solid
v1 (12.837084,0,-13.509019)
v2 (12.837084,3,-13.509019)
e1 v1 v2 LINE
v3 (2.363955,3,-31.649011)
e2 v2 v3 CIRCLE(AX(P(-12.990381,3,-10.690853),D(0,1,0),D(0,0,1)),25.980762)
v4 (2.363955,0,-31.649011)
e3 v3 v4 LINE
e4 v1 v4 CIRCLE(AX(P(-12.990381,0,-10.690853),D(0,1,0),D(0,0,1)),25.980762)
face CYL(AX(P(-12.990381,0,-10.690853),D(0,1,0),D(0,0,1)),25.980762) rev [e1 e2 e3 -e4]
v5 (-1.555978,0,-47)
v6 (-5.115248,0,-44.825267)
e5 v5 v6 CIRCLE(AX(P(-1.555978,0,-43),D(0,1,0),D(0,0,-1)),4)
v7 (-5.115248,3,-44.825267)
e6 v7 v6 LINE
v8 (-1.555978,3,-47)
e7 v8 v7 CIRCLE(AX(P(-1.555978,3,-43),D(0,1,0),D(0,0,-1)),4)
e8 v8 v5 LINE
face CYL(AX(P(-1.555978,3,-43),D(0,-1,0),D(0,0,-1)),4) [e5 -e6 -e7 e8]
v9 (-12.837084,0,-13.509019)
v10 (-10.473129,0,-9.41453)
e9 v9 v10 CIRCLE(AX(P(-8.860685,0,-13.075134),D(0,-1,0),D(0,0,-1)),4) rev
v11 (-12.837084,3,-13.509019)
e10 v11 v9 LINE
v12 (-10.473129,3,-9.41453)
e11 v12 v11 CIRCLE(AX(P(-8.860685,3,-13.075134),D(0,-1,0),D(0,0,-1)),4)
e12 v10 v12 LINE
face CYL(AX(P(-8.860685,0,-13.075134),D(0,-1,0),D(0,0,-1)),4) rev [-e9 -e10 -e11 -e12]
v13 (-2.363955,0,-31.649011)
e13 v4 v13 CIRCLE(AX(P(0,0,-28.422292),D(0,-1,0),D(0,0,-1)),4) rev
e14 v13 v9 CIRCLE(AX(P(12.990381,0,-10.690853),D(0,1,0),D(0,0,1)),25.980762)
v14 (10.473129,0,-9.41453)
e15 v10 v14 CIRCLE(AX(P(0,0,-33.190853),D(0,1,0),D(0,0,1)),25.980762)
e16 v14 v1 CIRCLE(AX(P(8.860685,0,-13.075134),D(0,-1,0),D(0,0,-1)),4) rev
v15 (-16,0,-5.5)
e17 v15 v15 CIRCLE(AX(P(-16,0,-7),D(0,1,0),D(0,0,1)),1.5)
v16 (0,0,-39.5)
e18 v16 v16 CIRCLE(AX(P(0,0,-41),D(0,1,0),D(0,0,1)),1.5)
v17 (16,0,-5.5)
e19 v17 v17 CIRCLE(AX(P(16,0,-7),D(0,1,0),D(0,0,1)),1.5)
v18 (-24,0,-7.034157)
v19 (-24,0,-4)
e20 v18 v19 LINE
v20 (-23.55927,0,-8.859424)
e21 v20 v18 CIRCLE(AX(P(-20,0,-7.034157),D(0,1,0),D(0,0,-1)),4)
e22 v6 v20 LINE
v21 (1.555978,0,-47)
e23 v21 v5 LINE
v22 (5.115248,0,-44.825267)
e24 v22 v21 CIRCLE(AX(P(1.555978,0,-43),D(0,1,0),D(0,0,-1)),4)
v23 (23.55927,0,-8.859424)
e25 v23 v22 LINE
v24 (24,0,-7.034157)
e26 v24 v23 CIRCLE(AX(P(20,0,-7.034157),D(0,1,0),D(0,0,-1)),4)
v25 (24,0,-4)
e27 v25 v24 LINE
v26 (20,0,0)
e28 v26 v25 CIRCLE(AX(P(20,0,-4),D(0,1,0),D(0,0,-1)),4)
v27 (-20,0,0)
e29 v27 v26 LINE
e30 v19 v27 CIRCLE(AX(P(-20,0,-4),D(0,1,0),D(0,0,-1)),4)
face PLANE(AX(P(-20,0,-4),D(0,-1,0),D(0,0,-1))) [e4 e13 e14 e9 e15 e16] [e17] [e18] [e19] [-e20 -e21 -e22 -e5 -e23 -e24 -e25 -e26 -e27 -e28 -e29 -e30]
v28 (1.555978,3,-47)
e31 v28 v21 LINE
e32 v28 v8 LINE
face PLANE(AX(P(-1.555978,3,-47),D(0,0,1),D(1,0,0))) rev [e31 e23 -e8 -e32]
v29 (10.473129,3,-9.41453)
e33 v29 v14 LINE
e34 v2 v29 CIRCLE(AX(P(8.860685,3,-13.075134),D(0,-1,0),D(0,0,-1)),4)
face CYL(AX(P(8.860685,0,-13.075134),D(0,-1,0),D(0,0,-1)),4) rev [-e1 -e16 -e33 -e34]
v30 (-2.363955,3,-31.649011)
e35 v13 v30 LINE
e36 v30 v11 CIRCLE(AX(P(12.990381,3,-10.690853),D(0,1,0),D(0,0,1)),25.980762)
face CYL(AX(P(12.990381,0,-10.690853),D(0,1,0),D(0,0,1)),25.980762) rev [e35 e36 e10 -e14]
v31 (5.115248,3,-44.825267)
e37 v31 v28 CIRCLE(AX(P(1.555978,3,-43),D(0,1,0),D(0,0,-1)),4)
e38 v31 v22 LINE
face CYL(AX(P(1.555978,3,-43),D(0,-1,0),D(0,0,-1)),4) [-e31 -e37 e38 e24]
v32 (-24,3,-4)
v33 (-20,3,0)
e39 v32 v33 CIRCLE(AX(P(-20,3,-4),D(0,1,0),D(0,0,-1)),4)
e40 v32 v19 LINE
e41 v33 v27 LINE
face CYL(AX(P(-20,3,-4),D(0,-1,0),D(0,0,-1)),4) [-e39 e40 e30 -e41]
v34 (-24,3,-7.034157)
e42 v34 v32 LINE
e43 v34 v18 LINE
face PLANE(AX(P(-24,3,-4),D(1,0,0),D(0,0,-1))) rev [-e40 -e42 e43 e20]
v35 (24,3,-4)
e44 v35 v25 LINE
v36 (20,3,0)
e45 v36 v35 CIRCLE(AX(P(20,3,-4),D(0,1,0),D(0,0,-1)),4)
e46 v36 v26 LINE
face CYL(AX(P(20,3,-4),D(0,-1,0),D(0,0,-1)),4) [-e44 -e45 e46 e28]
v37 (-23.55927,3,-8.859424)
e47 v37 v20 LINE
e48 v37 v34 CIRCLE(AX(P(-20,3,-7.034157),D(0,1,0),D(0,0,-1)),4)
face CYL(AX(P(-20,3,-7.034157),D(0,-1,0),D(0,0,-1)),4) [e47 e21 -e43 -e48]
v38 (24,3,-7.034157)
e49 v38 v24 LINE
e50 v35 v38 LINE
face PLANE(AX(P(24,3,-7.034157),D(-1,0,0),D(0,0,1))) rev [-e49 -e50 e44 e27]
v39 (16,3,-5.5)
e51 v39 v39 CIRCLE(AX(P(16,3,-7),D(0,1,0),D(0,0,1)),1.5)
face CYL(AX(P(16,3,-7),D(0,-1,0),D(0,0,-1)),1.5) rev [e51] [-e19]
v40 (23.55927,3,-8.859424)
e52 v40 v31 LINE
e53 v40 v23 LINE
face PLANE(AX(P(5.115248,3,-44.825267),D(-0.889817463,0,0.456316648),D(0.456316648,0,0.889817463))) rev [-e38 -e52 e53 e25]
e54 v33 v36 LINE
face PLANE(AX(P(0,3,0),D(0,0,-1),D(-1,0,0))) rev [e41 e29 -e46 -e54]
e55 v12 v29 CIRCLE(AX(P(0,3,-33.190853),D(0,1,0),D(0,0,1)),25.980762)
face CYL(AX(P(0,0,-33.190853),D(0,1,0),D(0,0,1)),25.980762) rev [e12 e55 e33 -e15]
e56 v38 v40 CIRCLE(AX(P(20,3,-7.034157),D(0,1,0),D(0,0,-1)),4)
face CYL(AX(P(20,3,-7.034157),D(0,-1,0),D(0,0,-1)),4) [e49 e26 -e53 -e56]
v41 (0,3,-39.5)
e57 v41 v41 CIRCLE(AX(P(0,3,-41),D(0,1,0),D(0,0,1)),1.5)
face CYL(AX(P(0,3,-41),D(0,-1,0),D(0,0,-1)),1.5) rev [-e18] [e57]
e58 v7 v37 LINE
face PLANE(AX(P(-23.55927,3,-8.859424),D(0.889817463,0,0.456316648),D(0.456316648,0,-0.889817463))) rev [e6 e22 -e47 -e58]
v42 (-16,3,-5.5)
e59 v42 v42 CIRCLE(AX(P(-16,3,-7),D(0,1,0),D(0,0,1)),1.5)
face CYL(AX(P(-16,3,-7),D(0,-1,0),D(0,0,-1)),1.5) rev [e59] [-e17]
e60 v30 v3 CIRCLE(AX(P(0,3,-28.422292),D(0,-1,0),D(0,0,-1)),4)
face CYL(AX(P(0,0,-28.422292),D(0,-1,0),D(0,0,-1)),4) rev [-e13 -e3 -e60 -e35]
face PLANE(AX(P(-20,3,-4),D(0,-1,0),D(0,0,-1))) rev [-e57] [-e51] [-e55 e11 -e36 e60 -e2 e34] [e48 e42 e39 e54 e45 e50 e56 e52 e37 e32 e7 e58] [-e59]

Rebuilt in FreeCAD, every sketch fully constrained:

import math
import FreeCAD as App
import Part
import Sketcher
Q = App.Units.Quantity


def edges_at(feature, points):
    """Names of the edges that pass closest to the given points."""
    edges = feature.Shape.Edges
    near = lambda p: min(range(len(edges)), key=lambda i: edges[i].distToShape(Part.Vertex(*p))[0])
    return sorted({f"Edge{near(p) + 1}" for p in points})

doc = App.newDocument("Part")
body = doc.addObject("PartDesign::Body", "Body")

sketch1 = doc.addObject("Sketcher::SketchObject", "Sketch")
body.addObject(sketch1)
sketch1.AttachmentSupport = (doc.XZ_Plane, [""])
sketch1.MapMode = "FlatFace"
sketch1.addGeometry(Part.ArcOfCircle(Part.Circle(App.Vector(-20, -4, 0), App.Vector(0, 0, 1), 4), math.radians(90), math.radians(180)), False)
sketch1.addGeometry(Part.LineSegment(App.Vector(-20, 0, 0), App.Vector(20, 0, 0)), False)
sketch1.addGeometry(Part.ArcOfCircle(Part.Circle(App.Vector(20, -4, 0), App.Vector(0, 0, 1), 4), math.radians(0), math.radians(90)), False)
sketch1.addGeometry(Part.LineSegment(App.Vector(24, -4, 0), App.Vector(24, -7, 0)), False)
sketch1.addGeometry(Part.ArcOfCircle(Part.Circle(App.Vector(20, -7, 0), App.Vector(0, 0, 1), 4), math.radians(-27), math.radians(0)), False)
sketch1.addGeometry(Part.LineSegment(App.Vector(23.6, -8.9, 0), App.Vector(5.1, -44.8, 0)), False)
sketch1.addGeometry(Part.ArcOfCircle(Part.Circle(App.Vector(1.6, -43, 0), App.Vector(0, 0, 1), 4), math.radians(-90), math.radians(-27)), False)
sketch1.addGeometry(Part.LineSegment(App.Vector(1.6, -47, 0), App.Vector(-1.6, -47, 0)), False)
sketch1.addGeometry(Part.ArcOfCircle(Part.Circle(App.Vector(-1.6, -43, 0), App.Vector(0, 0, 1), 4), math.radians(-153), math.radians(-90)), False)
sketch1.addGeometry(Part.LineSegment(App.Vector(-5.1, -44.8, 0), App.Vector(-23.6, -8.9, 0)), False)
sketch1.addGeometry(Part.ArcOfCircle(Part.Circle(App.Vector(-20, -7, 0), App.Vector(0, 0, 1), 4), math.radians(180), math.radians(207)), False)
sketch1.addGeometry(Part.LineSegment(App.Vector(-24, -7, 0), App.Vector(-24, -4, 0)), False)
sketch1.addGeometry(Part.Circle(App.Vector(16, -7, 0), App.Vector(0, 0, 1), 1.5), False)
sketch1.addGeometry(Part.Circle(App.Vector(-16, -7, 0), App.Vector(0, 0, 1), 1.5), False)
sketch1.addGeometry(Part.Circle(App.Vector(0, -41, 0), App.Vector(0, 0, 1), 1.5), False)
sketch1.addConstraint(Sketcher.Constraint("Tangent", 0, 1, 1, 1))
sketch1.addConstraint(Sketcher.Constraint("Tangent", 1, 2, 2, 2))
sketch1.addConstraint(Sketcher.Constraint("Tangent", 2, 1, 3, 1))
sketch1.addConstraint(Sketcher.Constraint("Tangent", 3, 2, 4, 2))
sketch1.addConstraint(Sketcher.Constraint("Tangent", 4, 1, 5, 1))
sketch1.addConstraint(Sketcher.Constraint("Tangent", 5, 2, 6, 2))
sketch1.addConstraint(Sketcher.Constraint("Tangent", 6, 1, 7, 1))
sketch1.addConstraint(Sketcher.Constraint("Tangent", 7, 2, 8, 2))
sketch1.addConstraint(Sketcher.Constraint("Tangent", 8, 1, 9, 1))
sketch1.addConstraint(Sketcher.Constraint("Tangent", 9, 2, 10, 2))
sketch1.addConstraint(Sketcher.Constraint("Tangent", 10, 1, 11, 1))
sketch1.addConstraint(Sketcher.Constraint("Tangent", 11, 2, 0, 2))
sketch1.addConstraint(Sketcher.Constraint("Horizontal", 1))
sketch1.addConstraint(Sketcher.Constraint("Vertical", 3))
sketch1.addConstraint(Sketcher.Constraint("Horizontal", 7))
sketch1.addConstraint(Sketcher.Constraint("Vertical", 11))
sketch1.addConstraint(Sketcher.Constraint("Equal", 0, 2))
sketch1.addConstraint(Sketcher.Constraint("Equal", 2, 4))
sketch1.addConstraint(Sketcher.Constraint("Equal", 4, 6))
sketch1.addConstraint(Sketcher.Constraint("Equal", 6, 8))
sketch1.addConstraint(Sketcher.Constraint("Equal", 8, 10))
sketch1.addConstraint(Sketcher.Constraint("Equal", 12, 13))
sketch1.addConstraint(Sketcher.Constraint("Equal", 13, 14))
sketch1.addConstraint(Sketcher.Constraint("Symmetric", 0, 1, 1, 2, -1, 1))
sketch1.addConstraint(Sketcher.Constraint("Symmetric", 12, 3, 13, 3, -2))
sketch1.addConstraint(Sketcher.Constraint("Symmetric", 5, 2, 8, 1, -2))
sketch1.addConstraint(Sketcher.Constraint("PointOnObject", 14, 3, -2))
sketch1.addConstraint(Sketcher.Constraint("Diameter", 12, Q("3 mm")))
sketch1.addConstraint(Sketcher.Constraint("Radius", 0, Q("4 mm")))
sketch1.addConstraint(Sketcher.Constraint("DistanceX", 1, 1, 1, 2, Q("40 mm")))
sketch1.addConstraint(Sketcher.Constraint("DistanceY", 6, 3, -1, 1, Q("43 mm")))
sketch1.addConstraint(Sketcher.Constraint("DistanceX", -1, 1, 12, 3, Q("16 mm")))
sketch1.addConstraint(Sketcher.Constraint("DistanceY", 12, 3, -1, 1, Q("7 mm")))
sketch1.addConstraint(Sketcher.Constraint("DistanceY", 14, 3, -1, 1, Q("41 mm")))
sketch1.addConstraint(Sketcher.Constraint("Distance", 5, Q("40.419349 mm")))
sketch1.addConstraint(Sketcher.Constraint("DistanceX", 7, 2, 7, 1, Q("3.111956 mm")))
pad1 = doc.addObject("PartDesign::Pad", "Pad")
body.addObject(pad1)
pad1.Profile = sketch1
pad1.Length = 3
pad1.Reversed = True

sketch2 = doc.addObject("Sketcher::SketchObject", "Sketch001")
body.addObject(sketch2)
sketch2.AttachmentSupport = (doc.XZ_Plane, [""])
sketch2.MapMode = "FlatFace"
sketch2.AttachmentOffset = App.Placement(App.Vector(0, 0, -3), App.Rotation())
sketch2.addGeometry(Part.ArcOfCircle(Part.Circle(App.Vector(0, -33, 0), App.Vector(0, 0, 1), 26), math.radians(60), math.radians(120)), False)
sketch2.addGeometry(Part.ArcOfCircle(Part.Circle(App.Vector(-13, -11, 0), App.Vector(0, 0, 1), 26), math.radians(-60), math.radians(0)), False)
sketch2.addGeometry(Part.ArcOfCircle(Part.Circle(App.Vector(13, -11, 0), App.Vector(0, 0, 1), 26), math.radians(-180), math.radians(-120)), False)
sketch2.addConstraint(Sketcher.Constraint("Coincident", 0, 1, 1, 2))
sketch2.addConstraint(Sketcher.Constraint("Coincident", 1, 1, 2, 2))
sketch2.addConstraint(Sketcher.Constraint("Coincident", 2, 1, 0, 2))
sketch2.addConstraint(Sketcher.Constraint("Coincident", 0, 1, 2, 3))
sketch2.addConstraint(Sketcher.Constraint("Coincident", 1, 1, 0, 3))
sketch2.addConstraint(Sketcher.Constraint("Equal", 0, 1))
sketch2.addConstraint(Sketcher.Constraint("Symmetric", 1, 3, 2, 3, -2))
sketch2.addConstraint(Sketcher.Constraint("DistanceY", 0, 3, 1, 3, Q("22.5 mm")))
sketch2.addConstraint(Sketcher.Constraint("DistanceY", 0, 3, -1, 1, Q("33.190853 mm")))
pocket1 = doc.addObject("PartDesign::Pocket", "Pocket")
body.addObject(pocket1)
pocket1.Profile = sketch2
pocket1.Length = 3
pocket1.Reversed = True
doc.recompute()

fillet = doc.addObject("PartDesign::Fillet", "Fillet")
body.addObject(fillet)
fillet.Base = (pocket1, edges_at(pocket1, [(-12.99, 1.5, -10.691), (0, 1.5, -33.191), (12.99, 1.5, -10.691)]))
fillet.Radius = 4

doc.recompute()
